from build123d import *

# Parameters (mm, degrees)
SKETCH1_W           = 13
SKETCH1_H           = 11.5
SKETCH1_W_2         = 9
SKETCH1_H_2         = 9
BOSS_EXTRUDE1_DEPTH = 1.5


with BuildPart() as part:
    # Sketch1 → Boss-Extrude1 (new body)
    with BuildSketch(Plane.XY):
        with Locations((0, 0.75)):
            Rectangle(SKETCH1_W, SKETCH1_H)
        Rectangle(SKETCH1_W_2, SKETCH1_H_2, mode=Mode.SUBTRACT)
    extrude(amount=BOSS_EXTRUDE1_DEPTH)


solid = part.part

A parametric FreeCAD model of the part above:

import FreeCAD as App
import Part
import Sketcher

V = App.Vector


def add_polygon(sketch, points):
    """Adds a closed chain of lines whose ends are joined by coincident constraints."""
    first, n = sketch.GeometryCount, len(points)
    for a, b in zip(points, points[1:] + points[:1]):
        sketch.addGeometry(Part.LineSegment(App.Vector(*a, 0), App.Vector(*b, 0)), False)
    for i in range(n):
        sketch.addConstraint(Sketcher.Constraint("Coincident", first + i, 2, first + (i + 1) % n, 1))

doc = App.newDocument("Part")
body = doc.addObject("PartDesign::Body", "Body")

# Sketch on XY plane
sketch1 = body.newObject("Sketcher::SketchObject", "Sketch")
sketch1.AttachmentSupport = (doc.getObject("XY_Plane"), [""])
sketch1.MapMode = "FlatFace"
add_polygon(sketch1, [(-6, 6), (-6, -5), (6, -5), (6, 6)])  # lines 0-3
add_polygon(sketch1, [(4, -4), (-4, -4), (-4, 4), (4, 4)])  # lines 4-7
sketch1.addConstraint(Sketcher.Constraint("Vertical", 0))
sketch1.addConstraint(Sketcher.Constraint("Horizontal", 1))
sketch1.addConstraint(Sketcher.Constraint("Vertical", 2))
sketch1.addConstraint(Sketcher.Constraint("Horizontal", 3))
sketch1.addConstraint(Sketcher.Constraint("Horizontal", 4))
sketch1.addConstraint(Sketcher.Constraint("Vertical", 5))
sketch1.addConstraint(Sketcher.Constraint("Horizontal", 6))
sketch1.addConstraint(Sketcher.Constraint("Vertical", 7))
sketch1.addConstraint(Sketcher.Constraint("Symmetric", 4, 2, 6, 2, -1, 1))
sketch1.addConstraint(Sketcher.Constraint("Equal", 6, 5))
sketch1.addConstraint(Sketcher.Constraint("DistanceX", 1, 1, 1, 2, 13.0))
sketch1.addConstraint(Sketcher.Constraint("DistanceX", 4, 2, 4, 1, 9.0))
sketch1.addConstraint(Sketcher.Constraint("DistanceY", 0, 2, 0, 1, 11.5))
sketch1.addConstraint(Sketcher.Constraint("DistanceY", 0, 2, -1, 1, 5.0))
sketch1.addConstraint(Sketcher.Constraint("DistanceX", 0, 2, 4, 2, 2.0))
pad1 = body.newObject("PartDesign::Pad", "Pad")
pad1.Profile = sketch1
pad1.Length = 1.5

doc.recompute()
